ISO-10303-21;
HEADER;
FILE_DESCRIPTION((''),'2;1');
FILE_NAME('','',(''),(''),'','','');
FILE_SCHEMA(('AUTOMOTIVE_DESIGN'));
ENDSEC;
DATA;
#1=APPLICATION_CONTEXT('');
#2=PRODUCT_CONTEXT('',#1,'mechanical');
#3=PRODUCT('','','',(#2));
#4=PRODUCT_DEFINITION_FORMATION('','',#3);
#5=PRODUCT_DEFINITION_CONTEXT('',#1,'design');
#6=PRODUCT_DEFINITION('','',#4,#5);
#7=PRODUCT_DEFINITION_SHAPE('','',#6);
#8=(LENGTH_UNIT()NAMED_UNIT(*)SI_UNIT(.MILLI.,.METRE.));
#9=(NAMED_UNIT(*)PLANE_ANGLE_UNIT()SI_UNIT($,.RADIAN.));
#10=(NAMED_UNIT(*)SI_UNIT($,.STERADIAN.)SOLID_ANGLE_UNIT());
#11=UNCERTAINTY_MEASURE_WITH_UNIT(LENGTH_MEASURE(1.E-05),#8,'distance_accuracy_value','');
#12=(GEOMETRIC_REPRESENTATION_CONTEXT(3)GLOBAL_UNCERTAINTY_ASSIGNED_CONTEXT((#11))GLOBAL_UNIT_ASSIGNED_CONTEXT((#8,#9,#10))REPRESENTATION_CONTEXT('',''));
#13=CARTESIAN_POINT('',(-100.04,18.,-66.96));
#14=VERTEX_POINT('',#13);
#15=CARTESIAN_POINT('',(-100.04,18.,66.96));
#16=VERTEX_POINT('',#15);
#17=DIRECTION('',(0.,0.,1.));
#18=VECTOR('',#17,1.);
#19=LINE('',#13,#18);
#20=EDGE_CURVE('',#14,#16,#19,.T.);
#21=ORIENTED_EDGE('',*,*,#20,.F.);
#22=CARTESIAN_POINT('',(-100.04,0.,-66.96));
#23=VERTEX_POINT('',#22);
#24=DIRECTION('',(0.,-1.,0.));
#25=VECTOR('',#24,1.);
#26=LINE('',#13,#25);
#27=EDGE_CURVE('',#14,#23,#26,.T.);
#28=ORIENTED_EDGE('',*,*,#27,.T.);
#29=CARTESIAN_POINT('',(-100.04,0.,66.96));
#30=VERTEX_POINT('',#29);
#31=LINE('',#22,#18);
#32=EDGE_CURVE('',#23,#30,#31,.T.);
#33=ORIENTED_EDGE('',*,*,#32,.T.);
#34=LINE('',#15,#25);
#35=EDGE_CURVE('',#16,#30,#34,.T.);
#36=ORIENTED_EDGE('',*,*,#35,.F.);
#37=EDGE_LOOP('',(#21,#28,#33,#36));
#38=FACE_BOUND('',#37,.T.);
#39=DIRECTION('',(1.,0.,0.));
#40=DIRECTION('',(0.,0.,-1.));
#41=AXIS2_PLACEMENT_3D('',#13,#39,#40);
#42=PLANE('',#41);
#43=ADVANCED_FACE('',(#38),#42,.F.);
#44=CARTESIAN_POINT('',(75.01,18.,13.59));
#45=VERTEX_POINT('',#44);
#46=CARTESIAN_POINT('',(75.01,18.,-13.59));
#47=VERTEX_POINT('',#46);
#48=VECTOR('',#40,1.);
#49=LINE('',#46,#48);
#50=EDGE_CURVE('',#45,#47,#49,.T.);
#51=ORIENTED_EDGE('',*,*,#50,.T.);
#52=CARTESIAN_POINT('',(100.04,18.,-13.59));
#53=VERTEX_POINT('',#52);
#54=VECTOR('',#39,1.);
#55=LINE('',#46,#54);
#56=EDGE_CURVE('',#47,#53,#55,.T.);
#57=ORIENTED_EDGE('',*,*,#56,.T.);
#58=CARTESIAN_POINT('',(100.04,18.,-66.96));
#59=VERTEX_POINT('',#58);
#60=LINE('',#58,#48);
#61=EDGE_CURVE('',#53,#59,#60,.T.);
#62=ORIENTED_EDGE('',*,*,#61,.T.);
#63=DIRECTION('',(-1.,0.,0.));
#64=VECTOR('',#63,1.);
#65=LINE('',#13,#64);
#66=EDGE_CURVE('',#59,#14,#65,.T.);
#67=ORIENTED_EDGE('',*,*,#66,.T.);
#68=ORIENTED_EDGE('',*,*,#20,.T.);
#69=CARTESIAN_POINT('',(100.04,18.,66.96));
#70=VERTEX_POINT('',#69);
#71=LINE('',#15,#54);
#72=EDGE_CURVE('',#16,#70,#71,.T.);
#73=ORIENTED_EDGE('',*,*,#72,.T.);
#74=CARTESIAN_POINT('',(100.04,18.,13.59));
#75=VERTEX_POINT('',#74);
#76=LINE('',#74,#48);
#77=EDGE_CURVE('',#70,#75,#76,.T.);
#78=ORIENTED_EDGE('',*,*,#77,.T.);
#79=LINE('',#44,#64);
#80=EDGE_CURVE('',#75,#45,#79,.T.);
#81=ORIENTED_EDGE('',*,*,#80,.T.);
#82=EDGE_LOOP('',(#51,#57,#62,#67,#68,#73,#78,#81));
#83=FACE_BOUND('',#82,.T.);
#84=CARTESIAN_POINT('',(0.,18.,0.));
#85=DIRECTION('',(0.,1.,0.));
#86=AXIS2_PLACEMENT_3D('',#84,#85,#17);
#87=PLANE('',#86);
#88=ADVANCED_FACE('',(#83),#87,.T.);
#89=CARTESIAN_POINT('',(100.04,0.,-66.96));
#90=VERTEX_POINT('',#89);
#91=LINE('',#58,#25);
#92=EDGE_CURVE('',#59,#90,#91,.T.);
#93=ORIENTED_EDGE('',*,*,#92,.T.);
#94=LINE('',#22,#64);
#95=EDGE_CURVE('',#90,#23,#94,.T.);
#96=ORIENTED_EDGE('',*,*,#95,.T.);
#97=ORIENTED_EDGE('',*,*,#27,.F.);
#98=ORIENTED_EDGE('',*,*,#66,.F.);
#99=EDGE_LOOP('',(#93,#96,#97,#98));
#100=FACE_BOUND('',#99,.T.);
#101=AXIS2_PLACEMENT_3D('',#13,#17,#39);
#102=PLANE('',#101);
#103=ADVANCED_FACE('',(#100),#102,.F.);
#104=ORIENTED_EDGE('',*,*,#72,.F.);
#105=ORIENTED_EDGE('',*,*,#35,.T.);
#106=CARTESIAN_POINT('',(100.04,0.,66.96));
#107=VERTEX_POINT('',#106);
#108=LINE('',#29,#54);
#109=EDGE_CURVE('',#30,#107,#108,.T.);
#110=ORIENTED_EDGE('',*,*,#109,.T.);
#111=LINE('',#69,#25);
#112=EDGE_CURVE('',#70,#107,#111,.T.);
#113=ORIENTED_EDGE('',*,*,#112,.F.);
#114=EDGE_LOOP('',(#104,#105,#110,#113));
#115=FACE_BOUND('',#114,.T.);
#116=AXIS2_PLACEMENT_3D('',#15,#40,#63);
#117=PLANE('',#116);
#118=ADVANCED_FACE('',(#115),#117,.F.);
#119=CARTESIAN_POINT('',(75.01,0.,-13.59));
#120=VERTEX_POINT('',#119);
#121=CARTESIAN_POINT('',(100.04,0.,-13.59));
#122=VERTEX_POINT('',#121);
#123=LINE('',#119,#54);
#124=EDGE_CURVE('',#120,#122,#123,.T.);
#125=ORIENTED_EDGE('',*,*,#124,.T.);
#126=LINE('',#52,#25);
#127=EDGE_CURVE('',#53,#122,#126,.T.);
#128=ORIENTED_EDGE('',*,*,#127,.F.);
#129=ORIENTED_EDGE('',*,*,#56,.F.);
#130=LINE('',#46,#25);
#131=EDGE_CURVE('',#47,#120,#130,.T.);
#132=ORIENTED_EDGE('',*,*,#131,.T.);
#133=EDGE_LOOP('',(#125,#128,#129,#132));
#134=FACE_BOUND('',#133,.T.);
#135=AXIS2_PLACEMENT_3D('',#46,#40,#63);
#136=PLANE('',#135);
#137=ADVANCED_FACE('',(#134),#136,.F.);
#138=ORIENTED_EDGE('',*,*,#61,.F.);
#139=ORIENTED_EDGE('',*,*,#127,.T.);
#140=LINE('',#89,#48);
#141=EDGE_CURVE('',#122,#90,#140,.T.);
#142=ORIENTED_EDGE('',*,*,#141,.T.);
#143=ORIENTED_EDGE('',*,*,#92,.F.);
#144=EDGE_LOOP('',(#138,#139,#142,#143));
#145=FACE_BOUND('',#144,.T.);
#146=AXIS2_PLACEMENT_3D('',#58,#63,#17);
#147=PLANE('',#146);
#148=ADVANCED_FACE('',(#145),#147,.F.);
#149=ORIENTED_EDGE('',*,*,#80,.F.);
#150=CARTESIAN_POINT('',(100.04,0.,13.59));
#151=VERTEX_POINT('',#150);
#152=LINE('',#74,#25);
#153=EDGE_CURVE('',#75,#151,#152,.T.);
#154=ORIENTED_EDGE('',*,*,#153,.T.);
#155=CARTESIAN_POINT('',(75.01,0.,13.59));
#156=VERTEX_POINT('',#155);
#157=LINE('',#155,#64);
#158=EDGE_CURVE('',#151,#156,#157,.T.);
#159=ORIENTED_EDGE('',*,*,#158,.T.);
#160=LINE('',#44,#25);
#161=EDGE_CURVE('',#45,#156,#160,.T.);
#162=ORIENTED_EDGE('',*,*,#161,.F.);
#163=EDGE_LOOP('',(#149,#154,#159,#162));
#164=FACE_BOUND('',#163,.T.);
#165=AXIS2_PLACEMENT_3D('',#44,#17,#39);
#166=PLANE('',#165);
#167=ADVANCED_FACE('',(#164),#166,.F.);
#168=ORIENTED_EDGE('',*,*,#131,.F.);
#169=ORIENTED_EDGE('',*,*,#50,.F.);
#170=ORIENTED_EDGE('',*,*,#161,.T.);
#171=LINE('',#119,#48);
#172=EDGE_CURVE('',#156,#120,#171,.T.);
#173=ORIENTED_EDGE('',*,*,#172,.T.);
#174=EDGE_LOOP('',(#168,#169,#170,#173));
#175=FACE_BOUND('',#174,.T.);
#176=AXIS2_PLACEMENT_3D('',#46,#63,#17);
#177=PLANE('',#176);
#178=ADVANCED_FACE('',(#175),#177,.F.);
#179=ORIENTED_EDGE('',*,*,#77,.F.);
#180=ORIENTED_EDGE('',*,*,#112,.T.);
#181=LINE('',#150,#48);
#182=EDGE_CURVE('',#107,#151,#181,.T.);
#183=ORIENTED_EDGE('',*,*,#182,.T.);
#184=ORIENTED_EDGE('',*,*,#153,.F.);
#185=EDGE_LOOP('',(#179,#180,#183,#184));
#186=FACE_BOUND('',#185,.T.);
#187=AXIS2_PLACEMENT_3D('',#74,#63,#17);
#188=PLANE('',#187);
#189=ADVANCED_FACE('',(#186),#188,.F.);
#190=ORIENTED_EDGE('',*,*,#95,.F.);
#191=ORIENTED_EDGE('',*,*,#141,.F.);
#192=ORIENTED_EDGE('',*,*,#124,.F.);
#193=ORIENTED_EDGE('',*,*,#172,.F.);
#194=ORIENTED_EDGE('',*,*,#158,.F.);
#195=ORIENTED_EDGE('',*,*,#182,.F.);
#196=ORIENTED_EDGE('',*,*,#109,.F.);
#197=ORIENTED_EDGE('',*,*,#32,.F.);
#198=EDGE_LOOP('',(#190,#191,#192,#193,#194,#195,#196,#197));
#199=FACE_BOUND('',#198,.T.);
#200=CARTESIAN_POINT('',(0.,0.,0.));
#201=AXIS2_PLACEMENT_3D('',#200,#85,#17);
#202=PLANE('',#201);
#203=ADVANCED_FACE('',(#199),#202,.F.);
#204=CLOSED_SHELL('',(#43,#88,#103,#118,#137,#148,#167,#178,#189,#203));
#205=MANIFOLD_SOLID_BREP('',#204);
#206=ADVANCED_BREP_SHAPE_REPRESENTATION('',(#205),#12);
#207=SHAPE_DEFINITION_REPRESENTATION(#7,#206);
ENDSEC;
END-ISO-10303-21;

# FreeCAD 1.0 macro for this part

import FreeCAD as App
import Part
import Sketcher
Q = App.Units.Quantity


def add_polygon(sketch, points):
    """Adds a closed chain of lines whose ends are joined by coincident constraints."""
    first, n = sketch.GeometryCount, len(points)
    for a, b in zip(points, points[1:] + points[:1]):
        sketch.addGeometry(Part.LineSegment(App.Vector(*a, 0), App.Vector(*b, 0)), False)
    for i in range(n):
        sketch.addConstraint(Sketcher.Constraint("Coincident", first + i, 2, first + (i + 1) % n, 1))

doc = App.newDocument("Part")
body = doc.addObject("PartDesign::Body", "Body")

# Sketch on XZ plane
sketch1 = doc.addObject("Sketcher::SketchObject", "Sketch")
body.addObject(sketch1)
sketch1.AttachmentSupport = (doc.XZ_Plane, [""])
sketch1.MapMode = "FlatFace"
add_polygon(sketch1, [(100, -67), (-100, -67), (-100, 67), (100, 67), (100, 14), (75, 14), (75, -14), (100, -14)])  # lines 0-7
sketch1.addConstraint(Sketcher.Constraint("Horizontal", 0))
sketch1.addConstraint(Sketcher.Constraint("Vertical", 1))
sketch1.addConstraint(Sketcher.Constraint("Horizontal", 2))
sketch1.addConstraint(Sketcher.Constraint("Vertical", 3))
sketch1.addConstraint(Sketcher.Constraint("Horizontal", 4))
sketch1.addConstraint(Sketcher.Constraint("Vertical", 5))
sketch1.addConstraint(Sketcher.Constraint("Horizontal", 6))
sketch1.addConstraint(Sketcher.Constraint("Vertical", 7))
sketch1.addConstraint(Sketcher.Constraint("Symmetric", 0, 2, 2, 2, -1, 1))
sketch1.addConstraint(Sketcher.Constraint("Symmetric", 3, 2, 6, 2, -1))
sketch1.addConstraint(Sketcher.Constraint("DistanceX", 0, 2, 0, 1, Q("200.08 mm")))
sketch1.addConstraint(Sketcher.Constraint("DistanceX", 4, 2, 4, 1, Q("25.03 mm")))
sketch1.addConstraint(Sketcher.Constraint("DistanceY", 1, 1, 1, 2, Q("133.92 mm")))
sketch1.addConstraint(Sketcher.Constraint("DistanceY", 3, 2, 3, 1, Q("53.37 mm")))
pad1 = doc.addObject("PartDesign::Pad", "Pad")
body.addObject(pad1)
pad1.Profile = sketch1
pad1.Length = 18
pad1.Reversed = True

doc.recompute()
